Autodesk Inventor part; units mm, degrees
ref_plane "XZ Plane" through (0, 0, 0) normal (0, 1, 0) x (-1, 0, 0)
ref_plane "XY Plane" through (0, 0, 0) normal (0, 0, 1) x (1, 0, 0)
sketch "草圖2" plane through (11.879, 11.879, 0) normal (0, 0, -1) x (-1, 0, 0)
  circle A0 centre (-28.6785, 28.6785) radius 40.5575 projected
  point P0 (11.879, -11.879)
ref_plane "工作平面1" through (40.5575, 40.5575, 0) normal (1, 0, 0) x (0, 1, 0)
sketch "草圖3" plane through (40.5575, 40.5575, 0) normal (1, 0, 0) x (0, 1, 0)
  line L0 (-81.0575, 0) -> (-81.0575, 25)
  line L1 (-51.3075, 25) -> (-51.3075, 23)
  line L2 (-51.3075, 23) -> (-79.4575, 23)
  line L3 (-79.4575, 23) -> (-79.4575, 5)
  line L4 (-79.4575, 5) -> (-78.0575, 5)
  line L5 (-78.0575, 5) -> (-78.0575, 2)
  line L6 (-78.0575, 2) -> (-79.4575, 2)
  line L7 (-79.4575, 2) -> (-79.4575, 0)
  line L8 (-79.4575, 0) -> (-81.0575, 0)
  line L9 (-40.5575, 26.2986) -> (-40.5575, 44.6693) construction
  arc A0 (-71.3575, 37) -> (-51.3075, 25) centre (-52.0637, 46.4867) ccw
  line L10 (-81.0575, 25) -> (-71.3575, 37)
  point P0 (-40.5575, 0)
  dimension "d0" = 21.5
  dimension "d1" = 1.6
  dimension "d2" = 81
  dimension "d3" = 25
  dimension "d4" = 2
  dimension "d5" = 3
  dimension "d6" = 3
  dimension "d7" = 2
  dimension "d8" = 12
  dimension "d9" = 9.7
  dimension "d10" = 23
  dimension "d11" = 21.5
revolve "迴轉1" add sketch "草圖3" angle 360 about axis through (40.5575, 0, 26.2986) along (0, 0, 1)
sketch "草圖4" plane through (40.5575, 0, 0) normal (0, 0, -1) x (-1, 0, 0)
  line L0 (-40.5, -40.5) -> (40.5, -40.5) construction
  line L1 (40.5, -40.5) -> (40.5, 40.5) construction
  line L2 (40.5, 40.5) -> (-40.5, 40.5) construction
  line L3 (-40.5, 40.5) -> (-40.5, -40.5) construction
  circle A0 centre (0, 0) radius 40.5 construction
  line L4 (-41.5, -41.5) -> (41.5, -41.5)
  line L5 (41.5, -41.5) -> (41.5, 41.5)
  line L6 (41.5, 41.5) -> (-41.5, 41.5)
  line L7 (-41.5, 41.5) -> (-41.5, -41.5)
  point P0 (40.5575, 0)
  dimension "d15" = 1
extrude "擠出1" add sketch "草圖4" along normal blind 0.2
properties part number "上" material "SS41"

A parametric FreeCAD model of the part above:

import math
import FreeCAD as App
import Part
import Sketcher

V = App.Vector


def add_polygon(sketch, points):
    """Adds a closed chain of lines whose ends are joined by coincident constraints."""
    first, n = sketch.GeometryCount, len(points)
    for a, b in zip(points, points[1:] + points[:1]):
        sketch.addGeometry(Part.LineSegment(App.Vector(*a, 0), App.Vector(*b, 0)), False)
    for i in range(n):
        sketch.addConstraint(Sketcher.Constraint("Coincident", first + i, 2, first + (i + 1) % n, 1))

doc = App.newDocument("Part")
params = doc.addObject("Spreadsheet::Sheet", "Params")
for row, (alias, value) in enumerate([
    ("sketch1_radius", "21.5 mm"),
    ("sketch1_height", "25 mm"),
    ("sketch1_height2", "2 mm"),
    ("sketch1_height3", "3 mm"),
    ("sketch1_width", "1.6 mm"),
    ("revolution_angle", "360 deg"),
    ("sketch2_width", "83 mm"),
    ("pad1_length", "0.2 mm"),
], start=1):
    params.set(f"A{row}", alias)
    params.set(f"B{row}", "=" + value)
    params.setAlias(f"B{row}", alias)

body = doc.addObject("PartDesign::Body", "Body")

sketch1 = body.newObject("Sketcher::SketchObject", "Sketch")
sketch1.AttachmentSupport = (doc.getObject("YZ_Plane"), [""])
sketch1.MapMode = "FlatFace"
sketch1.AttachmentOffset = App.Placement(V(0, 0, 40.5575), App.Rotation())
sketch1.addGeometry(Part.LineSegment(V(-40.5, 25, 0), V(-40.5, 0, 0)), False)
sketch1.addGeometry(Part.LineSegment(V(-40.5, 0, 0), V(-38.9, 0, 0)), False)
sketch1.addGeometry(Part.LineSegment(V(-38.9, 0, 0), V(-38.9, 2, 0)), False)
sketch1.addGeometry(Part.LineSegment(V(-38.9, 2, 0), V(-37.5, 2, 0)), False)
sketch1.addGeometry(Part.LineSegment(V(-37.5, 2, 0), V(-37.5, 5, 0)), False)
sketch1.addGeometry(Part.LineSegment(V(-37.5, 5, 0), V(-38.9, 5, 0)), False)
sketch1.addGeometry(Part.LineSegment(V(-38.9, 5, 0), V(-38.9, 23, 0)), False)
sketch1.addGeometry(Part.LineSegment(V(-38.9, 23, 0), V(-10.8, 23, 0)), False)
sketch1.addGeometry(Part.LineSegment(V(-10.8, 23, 0), V(-10.8, 25, 0)), False)
sketch1.addGeometry(Part.ArcOfCircle(Part.Circle(V(-11.5, 46.5, 0), V(0, 0, 1), 21.5), math.radians(-154), math.radians(-88)), False)
sketch1.addGeometry(Part.LineSegment(V(-30.8, 37, 0), V(-40.5, 25, 0)), False)
sketch1.addConstraint(Sketcher.Constraint("Coincident", 0, 2, 1, 1))
sketch1.addConstraint(Sketcher.Constraint("Coincident", 1, 2, 2, 1))
sketch1.addConstraint(Sketcher.Constraint("Coincident", 2, 2, 3, 1))
sketch1.addConstraint(Sketcher.Constraint("Coincident", 3, 2, 4, 1))
sketch1.addConstraint(Sketcher.Constraint("Coincident", 4, 2, 5, 1))
sketch1.addConstraint(Sketcher.Constraint("Coincident", 5, 2, 6, 1))
sketch1.addConstraint(Sketcher.Constraint("Coincident", 6, 2, 7, 1))
sketch1.addConstraint(Sketcher.Constraint("Coincident", 7, 2, 8, 1))
sketch1.addConstraint(Sketcher.Constraint("Coincident", 8, 2, 9, 2))
sketch1.addConstraint(Sketcher.Constraint("Coincident", 9, 1, 10, 1))
sketch1.addConstraint(Sketcher.Constraint("Coincident", 10, 2, 0, 1))
sketch1.addConstraint(Sketcher.Constraint("Vertical", 0))
sketch1.addConstraint(Sketcher.Constraint("Horizontal", 1))
sketch1.addConstraint(Sketcher.Constraint("Vertical", 2))
sketch1.addConstraint(Sketcher.Constraint("Horizontal", 3))
sketch1.addConstraint(Sketcher.Constraint("Vertical", 4))
sketch1.addConstraint(Sketcher.Constraint("Horizontal", 5))
sketch1.addConstraint(Sketcher.Constraint("Vertical", 6))
sketch1.addConstraint(Sketcher.Constraint("Horizontal", 7))
sketch1.addConstraint(Sketcher.Constraint("Vertical", 8))
sketch1.addConstraint(Sketcher.Constraint("PointOnObject", 0, 2, -1))
sketch1.addConstraint(Sketcher.Constraint("Horizontal", 8, 2, 10, 2))
sketch1.addConstraint(Sketcher.Constraint("Vertical", 2, 2, 5, 2))
sketch1.addConstraint(Sketcher.Constraint("Equal", 2, 8))
sketch1.addConstraint(Sketcher.Constraint("Radius", 9, 21.5))
sketch1.addConstraint(Sketcher.Constraint("DistanceY", 0, 2, 0, 1, 25.0))
sketch1.addConstraint(Sketcher.Constraint("DistanceY", 2, 1, 2, 2, 2.0))
sketch1.addConstraint(Sketcher.Constraint("DistanceY", 4, 1, 4, 2, 3.0))
sketch1.addConstraint(Sketcher.Constraint("DistanceX", 1, 1, 1, 2, 1.6))
sketch1.addConstraint(Sketcher.Constraint("DistanceX", 0, 2, 3, 2, 3.0))
sketch1.addConstraint(Sketcher.Constraint("DistanceY", 8, 2, 9, 1, 12.0))
sketch1.addConstraint(Sketcher.Constraint("DistanceX", 10, 2, 9, 1, 9.7))
sketch1.addConstraint(Sketcher.Constraint("DistanceX", 7, 1, 7, 2, 28.15))
sketch1.addConstraint(Sketcher.Constraint("DistanceX", 0, 2, -1, 1, 40.5))
sketch1.setExpression("Constraints[24]", "Params.sketch1_radius")
sketch1.setExpression("Constraints[25]", "Params.sketch1_height")
sketch1.setExpression("Constraints[26]", "Params.sketch1_height2")
sketch1.setExpression("Constraints[27]", "Params.sketch1_height3")
sketch1.setExpression("Constraints[28]", "Params.sketch1_width")
revolution = body.newObject("PartDesign::Revolution", "Revolution")
revolution.Profile = sketch1
revolution.ReferenceAxis = (sketch1, ["V_Axis"])
revolution.setExpression("Angle", "Params.revolution_angle")

sketch2 = body.newObject("Sketcher::SketchObject", "Sketch001")
sketch2.AttachmentSupport = (doc.getObject("XY_Plane"), [""])
sketch2.MapMode = "FlatFace"
add_polygon(sketch2, [(82, 42), (82, -42), (-1, -42), (-1, 42)])
sketch2.addConstraint(Sketcher.Constraint("Vertical", 0))
sketch2.addConstraint(Sketcher.Constraint("Horizontal", 1))
sketch2.addConstraint(Sketcher.Constraint("Vertical", 2))
sketch2.addConstraint(Sketcher.Constraint("Horizontal", 3))
sketch2.addConstraint(Sketcher.Constraint("Equal", 3, 0))
sketch2.addConstraint(Sketcher.Constraint("DistanceX", 1, 2, 1, 1, 83.0))
sketch2.addConstraint(Sketcher.Constraint("DistanceY", 0, 2, -1, 1, 41.5))
sketch2.addConstraint(Sketcher.Constraint("DistanceX", -1, 1, 0, 2, 82.0575))
sketch2.setExpression("Constraints[9]", "Params.sketch2_width")
pad1 = body.newObject("PartDesign::Pad", "Pad")
pad1.Profile = sketch2
pad1.setExpression("Length", "Params.pad1_length")
pad1.Reversed = True

doc.recompute()
